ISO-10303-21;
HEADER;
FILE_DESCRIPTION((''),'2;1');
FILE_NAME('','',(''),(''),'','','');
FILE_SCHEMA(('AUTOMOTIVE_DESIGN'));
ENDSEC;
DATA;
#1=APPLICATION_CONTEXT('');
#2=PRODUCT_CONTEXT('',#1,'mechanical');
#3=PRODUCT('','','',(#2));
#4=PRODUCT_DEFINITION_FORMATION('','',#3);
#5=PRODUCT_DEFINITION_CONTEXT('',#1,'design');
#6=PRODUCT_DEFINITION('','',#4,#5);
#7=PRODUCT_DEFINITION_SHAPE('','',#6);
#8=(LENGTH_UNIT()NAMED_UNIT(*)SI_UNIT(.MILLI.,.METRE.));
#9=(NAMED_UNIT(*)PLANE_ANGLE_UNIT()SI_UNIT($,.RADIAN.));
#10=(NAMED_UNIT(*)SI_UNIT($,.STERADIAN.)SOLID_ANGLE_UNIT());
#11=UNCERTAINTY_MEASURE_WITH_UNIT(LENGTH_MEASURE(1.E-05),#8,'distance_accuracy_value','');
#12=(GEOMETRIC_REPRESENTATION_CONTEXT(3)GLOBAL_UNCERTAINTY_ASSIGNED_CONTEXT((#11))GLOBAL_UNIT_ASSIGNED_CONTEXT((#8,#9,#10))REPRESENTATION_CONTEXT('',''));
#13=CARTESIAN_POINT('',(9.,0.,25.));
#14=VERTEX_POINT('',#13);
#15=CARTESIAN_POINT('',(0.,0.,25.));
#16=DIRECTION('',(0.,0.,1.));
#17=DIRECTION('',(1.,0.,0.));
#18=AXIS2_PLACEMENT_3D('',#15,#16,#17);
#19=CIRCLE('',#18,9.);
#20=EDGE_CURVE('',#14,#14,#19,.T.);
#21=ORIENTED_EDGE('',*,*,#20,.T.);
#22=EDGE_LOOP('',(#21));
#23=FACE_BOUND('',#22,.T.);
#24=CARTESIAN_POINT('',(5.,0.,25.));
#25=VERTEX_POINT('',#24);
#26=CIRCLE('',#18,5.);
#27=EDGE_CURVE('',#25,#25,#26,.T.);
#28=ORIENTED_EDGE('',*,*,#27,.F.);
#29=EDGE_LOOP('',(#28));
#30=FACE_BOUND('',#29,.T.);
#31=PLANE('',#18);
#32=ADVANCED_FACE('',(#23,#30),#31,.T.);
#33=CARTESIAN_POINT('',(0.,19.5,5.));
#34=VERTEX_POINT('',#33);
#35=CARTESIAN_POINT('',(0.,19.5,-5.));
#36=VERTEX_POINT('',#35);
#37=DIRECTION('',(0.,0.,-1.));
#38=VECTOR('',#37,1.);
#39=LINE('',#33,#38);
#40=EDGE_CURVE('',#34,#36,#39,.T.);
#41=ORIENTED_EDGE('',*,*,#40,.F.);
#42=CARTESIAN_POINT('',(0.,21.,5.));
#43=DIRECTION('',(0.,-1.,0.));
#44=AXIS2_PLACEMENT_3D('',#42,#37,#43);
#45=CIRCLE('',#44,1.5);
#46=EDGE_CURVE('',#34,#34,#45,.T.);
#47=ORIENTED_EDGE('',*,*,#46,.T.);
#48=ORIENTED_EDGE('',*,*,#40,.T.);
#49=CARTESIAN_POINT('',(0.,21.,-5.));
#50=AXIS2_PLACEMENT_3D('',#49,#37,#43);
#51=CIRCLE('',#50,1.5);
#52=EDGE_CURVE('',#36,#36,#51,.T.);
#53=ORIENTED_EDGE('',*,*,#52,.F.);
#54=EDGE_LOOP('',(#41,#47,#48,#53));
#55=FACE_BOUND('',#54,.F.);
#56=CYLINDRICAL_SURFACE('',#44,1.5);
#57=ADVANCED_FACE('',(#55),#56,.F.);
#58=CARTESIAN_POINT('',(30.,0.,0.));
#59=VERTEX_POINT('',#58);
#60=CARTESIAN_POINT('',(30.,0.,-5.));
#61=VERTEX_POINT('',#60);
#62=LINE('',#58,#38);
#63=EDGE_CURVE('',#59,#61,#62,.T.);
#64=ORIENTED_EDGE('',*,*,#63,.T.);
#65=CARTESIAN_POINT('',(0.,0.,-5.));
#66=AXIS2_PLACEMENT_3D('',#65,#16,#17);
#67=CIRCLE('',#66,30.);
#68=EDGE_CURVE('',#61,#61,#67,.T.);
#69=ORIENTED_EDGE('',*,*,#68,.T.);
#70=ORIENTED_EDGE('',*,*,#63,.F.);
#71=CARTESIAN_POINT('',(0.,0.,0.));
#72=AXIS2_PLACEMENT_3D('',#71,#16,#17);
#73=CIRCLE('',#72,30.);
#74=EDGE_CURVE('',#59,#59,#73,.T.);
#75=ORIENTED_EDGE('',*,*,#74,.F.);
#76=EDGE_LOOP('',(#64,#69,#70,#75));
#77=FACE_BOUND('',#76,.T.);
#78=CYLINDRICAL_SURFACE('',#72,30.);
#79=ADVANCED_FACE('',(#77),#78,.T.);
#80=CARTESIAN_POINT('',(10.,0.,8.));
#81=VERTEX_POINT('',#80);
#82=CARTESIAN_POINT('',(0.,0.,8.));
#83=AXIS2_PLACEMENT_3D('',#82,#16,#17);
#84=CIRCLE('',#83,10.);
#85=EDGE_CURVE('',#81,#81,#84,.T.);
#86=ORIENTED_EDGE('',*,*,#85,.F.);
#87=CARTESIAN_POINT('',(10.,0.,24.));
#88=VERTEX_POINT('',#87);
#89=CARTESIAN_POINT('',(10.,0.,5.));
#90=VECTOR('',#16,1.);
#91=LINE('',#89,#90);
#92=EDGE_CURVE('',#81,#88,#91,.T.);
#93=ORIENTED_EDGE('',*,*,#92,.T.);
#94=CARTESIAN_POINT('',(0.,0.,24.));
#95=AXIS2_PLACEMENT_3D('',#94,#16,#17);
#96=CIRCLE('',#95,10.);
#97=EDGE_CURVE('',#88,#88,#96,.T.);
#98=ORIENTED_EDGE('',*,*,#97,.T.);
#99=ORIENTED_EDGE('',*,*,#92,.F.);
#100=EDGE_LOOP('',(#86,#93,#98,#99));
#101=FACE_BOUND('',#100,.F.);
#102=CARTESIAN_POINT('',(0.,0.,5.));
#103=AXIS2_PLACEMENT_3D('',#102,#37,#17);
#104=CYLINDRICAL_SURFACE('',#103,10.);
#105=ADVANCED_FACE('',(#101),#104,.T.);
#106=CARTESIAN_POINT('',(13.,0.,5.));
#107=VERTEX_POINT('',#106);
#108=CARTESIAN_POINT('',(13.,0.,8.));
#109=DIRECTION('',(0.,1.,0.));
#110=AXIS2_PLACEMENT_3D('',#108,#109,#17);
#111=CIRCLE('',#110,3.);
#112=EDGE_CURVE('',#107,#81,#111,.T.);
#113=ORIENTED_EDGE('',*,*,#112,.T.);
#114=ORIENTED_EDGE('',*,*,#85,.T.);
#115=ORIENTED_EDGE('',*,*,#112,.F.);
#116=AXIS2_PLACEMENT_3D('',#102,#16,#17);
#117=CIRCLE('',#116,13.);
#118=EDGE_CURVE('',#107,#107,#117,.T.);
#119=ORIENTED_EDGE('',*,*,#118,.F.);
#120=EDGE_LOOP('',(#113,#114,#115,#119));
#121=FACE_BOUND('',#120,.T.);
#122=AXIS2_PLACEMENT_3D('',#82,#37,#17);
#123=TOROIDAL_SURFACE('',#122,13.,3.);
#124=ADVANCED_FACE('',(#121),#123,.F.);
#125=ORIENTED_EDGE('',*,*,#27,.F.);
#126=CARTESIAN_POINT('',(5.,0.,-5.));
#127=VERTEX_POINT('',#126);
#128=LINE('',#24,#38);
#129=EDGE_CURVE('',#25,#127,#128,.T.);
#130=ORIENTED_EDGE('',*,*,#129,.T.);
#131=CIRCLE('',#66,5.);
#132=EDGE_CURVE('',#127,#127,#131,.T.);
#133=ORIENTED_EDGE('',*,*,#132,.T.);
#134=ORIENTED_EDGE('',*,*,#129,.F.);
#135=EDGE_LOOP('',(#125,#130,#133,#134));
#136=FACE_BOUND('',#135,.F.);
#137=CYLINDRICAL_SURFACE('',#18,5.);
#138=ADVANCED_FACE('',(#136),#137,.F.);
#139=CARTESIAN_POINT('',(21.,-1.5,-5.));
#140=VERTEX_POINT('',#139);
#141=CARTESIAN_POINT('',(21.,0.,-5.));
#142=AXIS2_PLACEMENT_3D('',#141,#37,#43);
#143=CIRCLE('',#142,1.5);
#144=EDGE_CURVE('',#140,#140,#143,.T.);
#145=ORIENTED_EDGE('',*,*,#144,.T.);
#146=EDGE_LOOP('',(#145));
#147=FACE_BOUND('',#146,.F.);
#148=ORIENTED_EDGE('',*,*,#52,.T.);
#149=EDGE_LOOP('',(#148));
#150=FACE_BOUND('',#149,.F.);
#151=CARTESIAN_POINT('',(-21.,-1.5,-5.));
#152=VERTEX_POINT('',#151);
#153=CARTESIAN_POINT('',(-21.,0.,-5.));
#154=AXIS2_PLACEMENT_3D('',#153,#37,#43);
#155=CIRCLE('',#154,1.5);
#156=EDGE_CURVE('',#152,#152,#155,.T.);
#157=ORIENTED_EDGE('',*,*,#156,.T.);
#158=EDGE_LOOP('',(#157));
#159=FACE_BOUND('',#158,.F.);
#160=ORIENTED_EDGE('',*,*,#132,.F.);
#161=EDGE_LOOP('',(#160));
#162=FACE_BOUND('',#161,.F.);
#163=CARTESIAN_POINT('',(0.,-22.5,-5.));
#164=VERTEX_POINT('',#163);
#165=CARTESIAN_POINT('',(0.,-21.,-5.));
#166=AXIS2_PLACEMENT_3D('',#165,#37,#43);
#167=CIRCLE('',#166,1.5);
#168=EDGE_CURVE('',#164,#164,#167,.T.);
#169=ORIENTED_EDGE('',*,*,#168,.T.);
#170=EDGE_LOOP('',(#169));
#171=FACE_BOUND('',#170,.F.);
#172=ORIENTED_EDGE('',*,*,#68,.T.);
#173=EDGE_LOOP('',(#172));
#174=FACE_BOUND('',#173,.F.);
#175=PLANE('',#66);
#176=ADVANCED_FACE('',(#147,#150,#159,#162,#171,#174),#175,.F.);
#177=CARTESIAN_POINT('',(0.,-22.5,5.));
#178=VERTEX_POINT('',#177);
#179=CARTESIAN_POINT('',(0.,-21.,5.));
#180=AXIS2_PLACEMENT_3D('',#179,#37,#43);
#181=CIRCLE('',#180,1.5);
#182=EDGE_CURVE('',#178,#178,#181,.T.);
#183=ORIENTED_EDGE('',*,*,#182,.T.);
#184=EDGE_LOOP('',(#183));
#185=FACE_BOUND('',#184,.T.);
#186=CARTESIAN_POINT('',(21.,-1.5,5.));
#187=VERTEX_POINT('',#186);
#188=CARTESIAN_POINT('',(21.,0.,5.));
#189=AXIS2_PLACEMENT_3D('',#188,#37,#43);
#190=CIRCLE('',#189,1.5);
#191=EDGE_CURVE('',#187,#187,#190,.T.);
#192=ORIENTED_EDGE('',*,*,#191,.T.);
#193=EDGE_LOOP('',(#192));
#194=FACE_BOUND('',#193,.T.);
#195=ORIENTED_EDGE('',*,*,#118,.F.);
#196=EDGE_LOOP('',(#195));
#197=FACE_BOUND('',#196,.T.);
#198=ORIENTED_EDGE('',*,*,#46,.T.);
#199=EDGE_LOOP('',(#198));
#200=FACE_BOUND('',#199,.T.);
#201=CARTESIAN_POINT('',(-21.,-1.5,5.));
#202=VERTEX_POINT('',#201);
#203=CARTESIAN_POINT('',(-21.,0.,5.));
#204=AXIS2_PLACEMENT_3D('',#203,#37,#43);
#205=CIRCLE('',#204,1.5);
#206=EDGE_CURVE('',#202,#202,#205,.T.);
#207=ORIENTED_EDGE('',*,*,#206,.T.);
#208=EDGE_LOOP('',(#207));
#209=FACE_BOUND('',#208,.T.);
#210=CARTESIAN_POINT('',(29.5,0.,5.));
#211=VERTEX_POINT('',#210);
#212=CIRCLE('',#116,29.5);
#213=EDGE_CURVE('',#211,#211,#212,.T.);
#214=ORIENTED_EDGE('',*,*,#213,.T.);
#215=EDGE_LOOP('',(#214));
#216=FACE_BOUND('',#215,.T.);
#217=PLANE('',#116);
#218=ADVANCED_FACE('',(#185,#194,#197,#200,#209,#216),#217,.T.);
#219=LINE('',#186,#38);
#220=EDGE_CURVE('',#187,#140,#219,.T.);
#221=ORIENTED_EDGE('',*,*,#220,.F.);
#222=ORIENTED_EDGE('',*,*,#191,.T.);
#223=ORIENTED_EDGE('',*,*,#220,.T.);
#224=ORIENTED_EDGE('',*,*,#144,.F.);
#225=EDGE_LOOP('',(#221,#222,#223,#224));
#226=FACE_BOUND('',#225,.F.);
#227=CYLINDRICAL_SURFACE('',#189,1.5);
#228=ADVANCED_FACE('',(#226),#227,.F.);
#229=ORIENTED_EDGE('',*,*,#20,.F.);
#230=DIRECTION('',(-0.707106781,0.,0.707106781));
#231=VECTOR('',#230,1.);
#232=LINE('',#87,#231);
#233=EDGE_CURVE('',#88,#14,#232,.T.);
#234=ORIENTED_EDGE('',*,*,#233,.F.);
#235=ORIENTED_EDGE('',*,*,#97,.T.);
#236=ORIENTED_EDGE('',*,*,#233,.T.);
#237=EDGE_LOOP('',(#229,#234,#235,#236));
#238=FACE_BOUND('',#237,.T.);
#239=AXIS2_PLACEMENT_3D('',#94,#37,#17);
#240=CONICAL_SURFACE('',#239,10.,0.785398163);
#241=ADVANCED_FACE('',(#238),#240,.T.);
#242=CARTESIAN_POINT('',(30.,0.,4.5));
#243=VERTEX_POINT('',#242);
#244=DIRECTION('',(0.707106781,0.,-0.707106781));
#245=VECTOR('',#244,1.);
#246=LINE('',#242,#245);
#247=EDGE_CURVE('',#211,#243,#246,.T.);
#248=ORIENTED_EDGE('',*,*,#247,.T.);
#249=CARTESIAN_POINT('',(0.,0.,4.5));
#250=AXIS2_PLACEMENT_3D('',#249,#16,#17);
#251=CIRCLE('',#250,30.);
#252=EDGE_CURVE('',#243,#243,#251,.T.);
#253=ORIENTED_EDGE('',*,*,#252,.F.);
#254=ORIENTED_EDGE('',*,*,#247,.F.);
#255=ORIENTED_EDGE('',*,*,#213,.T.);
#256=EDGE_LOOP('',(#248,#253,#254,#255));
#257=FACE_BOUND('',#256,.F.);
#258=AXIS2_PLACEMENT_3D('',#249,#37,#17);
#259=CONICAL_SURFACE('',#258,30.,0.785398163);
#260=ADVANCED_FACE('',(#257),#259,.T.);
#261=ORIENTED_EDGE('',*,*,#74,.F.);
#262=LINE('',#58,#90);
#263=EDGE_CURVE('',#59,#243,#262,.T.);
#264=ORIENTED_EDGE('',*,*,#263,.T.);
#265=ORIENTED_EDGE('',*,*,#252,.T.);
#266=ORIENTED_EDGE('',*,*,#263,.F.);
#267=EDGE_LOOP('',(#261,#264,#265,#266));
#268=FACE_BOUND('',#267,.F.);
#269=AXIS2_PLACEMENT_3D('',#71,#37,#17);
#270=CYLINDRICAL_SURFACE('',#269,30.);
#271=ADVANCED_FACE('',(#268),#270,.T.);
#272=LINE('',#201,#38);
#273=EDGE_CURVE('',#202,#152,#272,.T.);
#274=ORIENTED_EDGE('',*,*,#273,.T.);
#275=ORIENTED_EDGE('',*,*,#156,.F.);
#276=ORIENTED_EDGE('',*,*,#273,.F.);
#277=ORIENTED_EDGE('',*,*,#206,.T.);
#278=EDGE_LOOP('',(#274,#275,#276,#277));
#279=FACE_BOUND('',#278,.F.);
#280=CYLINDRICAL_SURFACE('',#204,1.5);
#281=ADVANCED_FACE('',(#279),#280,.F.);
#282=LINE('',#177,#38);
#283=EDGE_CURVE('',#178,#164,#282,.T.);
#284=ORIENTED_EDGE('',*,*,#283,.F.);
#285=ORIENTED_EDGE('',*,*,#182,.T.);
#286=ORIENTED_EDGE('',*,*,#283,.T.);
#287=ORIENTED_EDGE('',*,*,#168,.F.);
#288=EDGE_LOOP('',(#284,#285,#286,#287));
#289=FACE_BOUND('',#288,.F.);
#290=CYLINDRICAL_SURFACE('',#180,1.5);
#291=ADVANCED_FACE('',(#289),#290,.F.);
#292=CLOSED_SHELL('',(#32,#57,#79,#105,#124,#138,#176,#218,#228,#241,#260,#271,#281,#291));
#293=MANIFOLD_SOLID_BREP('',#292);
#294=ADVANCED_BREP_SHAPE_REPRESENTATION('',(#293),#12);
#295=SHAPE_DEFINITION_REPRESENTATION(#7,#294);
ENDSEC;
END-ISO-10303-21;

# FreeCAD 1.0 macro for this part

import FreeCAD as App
import Part
import Sketcher
Q = App.Units.Quantity


def edges_at(feature, points):
    """Names of the edges that pass closest to the given points."""
    edges = feature.Shape.Edges
    near = lambda p: min(range(len(edges)), key=lambda i: edges[i].distToShape(Part.Vertex(*p))[0])
    return sorted({f"Edge{near(p) + 1}" for p in points})

doc = App.newDocument("Part")
body = doc.addObject("PartDesign::Body", "Body")

# Sketch on XY plane
sketch1 = body.newObject("Sketcher::SketchObject", "Sketch")
sketch1.AttachmentSupport = (doc.getObject("XY_Plane"), [""])
sketch1.MapMode = "FlatFace"
sketch1.addGeometry(Part.Circle(App.Vector(0, 0, 0), App.Vector(0, 0, 1), 30), False)
sketch1.addConstraint([
    Sketcher.Constraint("Coincident", 0, 3, -1, 1),
    Sketcher.Constraint("Diameter", 0, Q("60 mm")),
])
pad1 = body.newObject("PartDesign::Pad", "Pad")
pad1.Profile = sketch1
pad1.Length = 10
pad1.Midplane = True

# Sketch on XY plane
sketch2 = body.newObject("Sketcher::SketchObject", "Sketch001")
sketch2.AttachmentSupport = (doc.getObject("XY_Plane"), [""])
sketch2.MapMode = "FlatFace"
sketch2.AttachmentOffset = App.Placement(App.Vector(0, 0, 5), App.Rotation())
sketch2.addGeometry(Part.Circle(App.Vector(0, 0, 0), App.Vector(0, 0, 1), 10), False)
sketch2.addConstraint([
    Sketcher.Constraint("Coincident", 0, 3, -1, 1),
    Sketcher.Constraint("Diameter", 0, Q("20 mm")),
])
pad2 = body.newObject("PartDesign::Pad", "Pad001")
pad2.Profile = sketch2
pad2.Length = 20

# Sketch on XY plane
sketch3 = body.newObject("Sketcher::SketchObject", "Sketch002")
sketch3.AttachmentSupport = (doc.getObject("XY_Plane"), [""])
sketch3.MapMode = "FlatFace"
sketch3.AttachmentOffset = App.Placement(App.Vector(0, 0, 25), App.Rotation())
sketch3.addGeometry(Part.Circle(App.Vector(0, 0, 0), App.Vector(0, 0, 1), 5), False)
sketch3.addConstraint([
    Sketcher.Constraint("Coincident", 0, 3, -1, 1),
    Sketcher.Constraint("Diameter", 0, Q("10 mm")),
])
pocket1 = body.newObject("PartDesign::Pocket", "Pocket")
pocket1.Profile = sketch3
pocket1.Type = "ThroughAll"
doc.recompute()

fillet = body.newObject("PartDesign::Fillet", "Fillet")
fillet.Base = (pocket1, edges_at(pocket1, [(-10, 0, 5)]))
fillet.Radius = 3
doc.recompute()

chamfer = body.newObject("PartDesign::Chamfer", "Chamfer")
chamfer.Base = (fillet, edges_at(fillet, [(-10, 0, 25)]))
chamfer.Size = 1

# Sketch on XY plane
sketch4 = body.newObject("Sketcher::SketchObject", "Sketch003")
sketch4.AttachmentSupport = (doc.getObject("XY_Plane"), [""])
sketch4.MapMode = "FlatFace"
sketch4.AttachmentOffset = App.Placement(App.Vector(0, 0, 5), App.Rotation())
sketch4.addGeometry([
    Part.Circle(App.Vector(-21, 0, 0), App.Vector(0, 0, 1), 1.5),
    Part.Circle(App.Vector(21, 0, 0), App.Vector(0, 0, 1), 1.5),
    Part.Circle(App.Vector(0, 21, 0), App.Vector(0, 0, 1), 1.5),
    Part.Circle(App.Vector(0, -21, 0), App.Vector(0, 0, 1), 1.5),
], False)
sketch4.addConstraint([
    Sketcher.Constraint("Equal", 0, 1),
    Sketcher.Constraint("Equal", 1, 2),
    Sketcher.Constraint("Equal", 2, 3),
    Sketcher.Constraint("Symmetric", 0, 3, 1, 3, -1, 1),
    Sketcher.Constraint("Symmetric", 2, 3, 3, 3, -1, 1),
    Sketcher.Constraint("PointOnObject", 0, 3, -1),
    Sketcher.Constraint("PointOnObject", 2, 3, -2),
    Sketcher.Constraint("Diameter", 0, Q("3 mm")),
    Sketcher.Constraint("DistanceX", 0, 3, -1, 1, Q("21 mm")),
    Sketcher.Constraint("DistanceY", -1, 1, 2, 3, Q("21 mm")),
])
doc.recompute()
hole = body.newObject("PartDesign::Hole", "Hole")
hole.Profile = sketch4
hole.ThreadType = "None"
hole.Diameter = 3
hole.DepthType = "ThroughAll"
doc.recompute()

chamfer2 = body.newObject("PartDesign::Chamfer", "Chamfer001")
chamfer2.Base = (hole, edges_at(hole, [(-30, 0, 5)]))
chamfer2.Size = 0.5

doc.recompute()
